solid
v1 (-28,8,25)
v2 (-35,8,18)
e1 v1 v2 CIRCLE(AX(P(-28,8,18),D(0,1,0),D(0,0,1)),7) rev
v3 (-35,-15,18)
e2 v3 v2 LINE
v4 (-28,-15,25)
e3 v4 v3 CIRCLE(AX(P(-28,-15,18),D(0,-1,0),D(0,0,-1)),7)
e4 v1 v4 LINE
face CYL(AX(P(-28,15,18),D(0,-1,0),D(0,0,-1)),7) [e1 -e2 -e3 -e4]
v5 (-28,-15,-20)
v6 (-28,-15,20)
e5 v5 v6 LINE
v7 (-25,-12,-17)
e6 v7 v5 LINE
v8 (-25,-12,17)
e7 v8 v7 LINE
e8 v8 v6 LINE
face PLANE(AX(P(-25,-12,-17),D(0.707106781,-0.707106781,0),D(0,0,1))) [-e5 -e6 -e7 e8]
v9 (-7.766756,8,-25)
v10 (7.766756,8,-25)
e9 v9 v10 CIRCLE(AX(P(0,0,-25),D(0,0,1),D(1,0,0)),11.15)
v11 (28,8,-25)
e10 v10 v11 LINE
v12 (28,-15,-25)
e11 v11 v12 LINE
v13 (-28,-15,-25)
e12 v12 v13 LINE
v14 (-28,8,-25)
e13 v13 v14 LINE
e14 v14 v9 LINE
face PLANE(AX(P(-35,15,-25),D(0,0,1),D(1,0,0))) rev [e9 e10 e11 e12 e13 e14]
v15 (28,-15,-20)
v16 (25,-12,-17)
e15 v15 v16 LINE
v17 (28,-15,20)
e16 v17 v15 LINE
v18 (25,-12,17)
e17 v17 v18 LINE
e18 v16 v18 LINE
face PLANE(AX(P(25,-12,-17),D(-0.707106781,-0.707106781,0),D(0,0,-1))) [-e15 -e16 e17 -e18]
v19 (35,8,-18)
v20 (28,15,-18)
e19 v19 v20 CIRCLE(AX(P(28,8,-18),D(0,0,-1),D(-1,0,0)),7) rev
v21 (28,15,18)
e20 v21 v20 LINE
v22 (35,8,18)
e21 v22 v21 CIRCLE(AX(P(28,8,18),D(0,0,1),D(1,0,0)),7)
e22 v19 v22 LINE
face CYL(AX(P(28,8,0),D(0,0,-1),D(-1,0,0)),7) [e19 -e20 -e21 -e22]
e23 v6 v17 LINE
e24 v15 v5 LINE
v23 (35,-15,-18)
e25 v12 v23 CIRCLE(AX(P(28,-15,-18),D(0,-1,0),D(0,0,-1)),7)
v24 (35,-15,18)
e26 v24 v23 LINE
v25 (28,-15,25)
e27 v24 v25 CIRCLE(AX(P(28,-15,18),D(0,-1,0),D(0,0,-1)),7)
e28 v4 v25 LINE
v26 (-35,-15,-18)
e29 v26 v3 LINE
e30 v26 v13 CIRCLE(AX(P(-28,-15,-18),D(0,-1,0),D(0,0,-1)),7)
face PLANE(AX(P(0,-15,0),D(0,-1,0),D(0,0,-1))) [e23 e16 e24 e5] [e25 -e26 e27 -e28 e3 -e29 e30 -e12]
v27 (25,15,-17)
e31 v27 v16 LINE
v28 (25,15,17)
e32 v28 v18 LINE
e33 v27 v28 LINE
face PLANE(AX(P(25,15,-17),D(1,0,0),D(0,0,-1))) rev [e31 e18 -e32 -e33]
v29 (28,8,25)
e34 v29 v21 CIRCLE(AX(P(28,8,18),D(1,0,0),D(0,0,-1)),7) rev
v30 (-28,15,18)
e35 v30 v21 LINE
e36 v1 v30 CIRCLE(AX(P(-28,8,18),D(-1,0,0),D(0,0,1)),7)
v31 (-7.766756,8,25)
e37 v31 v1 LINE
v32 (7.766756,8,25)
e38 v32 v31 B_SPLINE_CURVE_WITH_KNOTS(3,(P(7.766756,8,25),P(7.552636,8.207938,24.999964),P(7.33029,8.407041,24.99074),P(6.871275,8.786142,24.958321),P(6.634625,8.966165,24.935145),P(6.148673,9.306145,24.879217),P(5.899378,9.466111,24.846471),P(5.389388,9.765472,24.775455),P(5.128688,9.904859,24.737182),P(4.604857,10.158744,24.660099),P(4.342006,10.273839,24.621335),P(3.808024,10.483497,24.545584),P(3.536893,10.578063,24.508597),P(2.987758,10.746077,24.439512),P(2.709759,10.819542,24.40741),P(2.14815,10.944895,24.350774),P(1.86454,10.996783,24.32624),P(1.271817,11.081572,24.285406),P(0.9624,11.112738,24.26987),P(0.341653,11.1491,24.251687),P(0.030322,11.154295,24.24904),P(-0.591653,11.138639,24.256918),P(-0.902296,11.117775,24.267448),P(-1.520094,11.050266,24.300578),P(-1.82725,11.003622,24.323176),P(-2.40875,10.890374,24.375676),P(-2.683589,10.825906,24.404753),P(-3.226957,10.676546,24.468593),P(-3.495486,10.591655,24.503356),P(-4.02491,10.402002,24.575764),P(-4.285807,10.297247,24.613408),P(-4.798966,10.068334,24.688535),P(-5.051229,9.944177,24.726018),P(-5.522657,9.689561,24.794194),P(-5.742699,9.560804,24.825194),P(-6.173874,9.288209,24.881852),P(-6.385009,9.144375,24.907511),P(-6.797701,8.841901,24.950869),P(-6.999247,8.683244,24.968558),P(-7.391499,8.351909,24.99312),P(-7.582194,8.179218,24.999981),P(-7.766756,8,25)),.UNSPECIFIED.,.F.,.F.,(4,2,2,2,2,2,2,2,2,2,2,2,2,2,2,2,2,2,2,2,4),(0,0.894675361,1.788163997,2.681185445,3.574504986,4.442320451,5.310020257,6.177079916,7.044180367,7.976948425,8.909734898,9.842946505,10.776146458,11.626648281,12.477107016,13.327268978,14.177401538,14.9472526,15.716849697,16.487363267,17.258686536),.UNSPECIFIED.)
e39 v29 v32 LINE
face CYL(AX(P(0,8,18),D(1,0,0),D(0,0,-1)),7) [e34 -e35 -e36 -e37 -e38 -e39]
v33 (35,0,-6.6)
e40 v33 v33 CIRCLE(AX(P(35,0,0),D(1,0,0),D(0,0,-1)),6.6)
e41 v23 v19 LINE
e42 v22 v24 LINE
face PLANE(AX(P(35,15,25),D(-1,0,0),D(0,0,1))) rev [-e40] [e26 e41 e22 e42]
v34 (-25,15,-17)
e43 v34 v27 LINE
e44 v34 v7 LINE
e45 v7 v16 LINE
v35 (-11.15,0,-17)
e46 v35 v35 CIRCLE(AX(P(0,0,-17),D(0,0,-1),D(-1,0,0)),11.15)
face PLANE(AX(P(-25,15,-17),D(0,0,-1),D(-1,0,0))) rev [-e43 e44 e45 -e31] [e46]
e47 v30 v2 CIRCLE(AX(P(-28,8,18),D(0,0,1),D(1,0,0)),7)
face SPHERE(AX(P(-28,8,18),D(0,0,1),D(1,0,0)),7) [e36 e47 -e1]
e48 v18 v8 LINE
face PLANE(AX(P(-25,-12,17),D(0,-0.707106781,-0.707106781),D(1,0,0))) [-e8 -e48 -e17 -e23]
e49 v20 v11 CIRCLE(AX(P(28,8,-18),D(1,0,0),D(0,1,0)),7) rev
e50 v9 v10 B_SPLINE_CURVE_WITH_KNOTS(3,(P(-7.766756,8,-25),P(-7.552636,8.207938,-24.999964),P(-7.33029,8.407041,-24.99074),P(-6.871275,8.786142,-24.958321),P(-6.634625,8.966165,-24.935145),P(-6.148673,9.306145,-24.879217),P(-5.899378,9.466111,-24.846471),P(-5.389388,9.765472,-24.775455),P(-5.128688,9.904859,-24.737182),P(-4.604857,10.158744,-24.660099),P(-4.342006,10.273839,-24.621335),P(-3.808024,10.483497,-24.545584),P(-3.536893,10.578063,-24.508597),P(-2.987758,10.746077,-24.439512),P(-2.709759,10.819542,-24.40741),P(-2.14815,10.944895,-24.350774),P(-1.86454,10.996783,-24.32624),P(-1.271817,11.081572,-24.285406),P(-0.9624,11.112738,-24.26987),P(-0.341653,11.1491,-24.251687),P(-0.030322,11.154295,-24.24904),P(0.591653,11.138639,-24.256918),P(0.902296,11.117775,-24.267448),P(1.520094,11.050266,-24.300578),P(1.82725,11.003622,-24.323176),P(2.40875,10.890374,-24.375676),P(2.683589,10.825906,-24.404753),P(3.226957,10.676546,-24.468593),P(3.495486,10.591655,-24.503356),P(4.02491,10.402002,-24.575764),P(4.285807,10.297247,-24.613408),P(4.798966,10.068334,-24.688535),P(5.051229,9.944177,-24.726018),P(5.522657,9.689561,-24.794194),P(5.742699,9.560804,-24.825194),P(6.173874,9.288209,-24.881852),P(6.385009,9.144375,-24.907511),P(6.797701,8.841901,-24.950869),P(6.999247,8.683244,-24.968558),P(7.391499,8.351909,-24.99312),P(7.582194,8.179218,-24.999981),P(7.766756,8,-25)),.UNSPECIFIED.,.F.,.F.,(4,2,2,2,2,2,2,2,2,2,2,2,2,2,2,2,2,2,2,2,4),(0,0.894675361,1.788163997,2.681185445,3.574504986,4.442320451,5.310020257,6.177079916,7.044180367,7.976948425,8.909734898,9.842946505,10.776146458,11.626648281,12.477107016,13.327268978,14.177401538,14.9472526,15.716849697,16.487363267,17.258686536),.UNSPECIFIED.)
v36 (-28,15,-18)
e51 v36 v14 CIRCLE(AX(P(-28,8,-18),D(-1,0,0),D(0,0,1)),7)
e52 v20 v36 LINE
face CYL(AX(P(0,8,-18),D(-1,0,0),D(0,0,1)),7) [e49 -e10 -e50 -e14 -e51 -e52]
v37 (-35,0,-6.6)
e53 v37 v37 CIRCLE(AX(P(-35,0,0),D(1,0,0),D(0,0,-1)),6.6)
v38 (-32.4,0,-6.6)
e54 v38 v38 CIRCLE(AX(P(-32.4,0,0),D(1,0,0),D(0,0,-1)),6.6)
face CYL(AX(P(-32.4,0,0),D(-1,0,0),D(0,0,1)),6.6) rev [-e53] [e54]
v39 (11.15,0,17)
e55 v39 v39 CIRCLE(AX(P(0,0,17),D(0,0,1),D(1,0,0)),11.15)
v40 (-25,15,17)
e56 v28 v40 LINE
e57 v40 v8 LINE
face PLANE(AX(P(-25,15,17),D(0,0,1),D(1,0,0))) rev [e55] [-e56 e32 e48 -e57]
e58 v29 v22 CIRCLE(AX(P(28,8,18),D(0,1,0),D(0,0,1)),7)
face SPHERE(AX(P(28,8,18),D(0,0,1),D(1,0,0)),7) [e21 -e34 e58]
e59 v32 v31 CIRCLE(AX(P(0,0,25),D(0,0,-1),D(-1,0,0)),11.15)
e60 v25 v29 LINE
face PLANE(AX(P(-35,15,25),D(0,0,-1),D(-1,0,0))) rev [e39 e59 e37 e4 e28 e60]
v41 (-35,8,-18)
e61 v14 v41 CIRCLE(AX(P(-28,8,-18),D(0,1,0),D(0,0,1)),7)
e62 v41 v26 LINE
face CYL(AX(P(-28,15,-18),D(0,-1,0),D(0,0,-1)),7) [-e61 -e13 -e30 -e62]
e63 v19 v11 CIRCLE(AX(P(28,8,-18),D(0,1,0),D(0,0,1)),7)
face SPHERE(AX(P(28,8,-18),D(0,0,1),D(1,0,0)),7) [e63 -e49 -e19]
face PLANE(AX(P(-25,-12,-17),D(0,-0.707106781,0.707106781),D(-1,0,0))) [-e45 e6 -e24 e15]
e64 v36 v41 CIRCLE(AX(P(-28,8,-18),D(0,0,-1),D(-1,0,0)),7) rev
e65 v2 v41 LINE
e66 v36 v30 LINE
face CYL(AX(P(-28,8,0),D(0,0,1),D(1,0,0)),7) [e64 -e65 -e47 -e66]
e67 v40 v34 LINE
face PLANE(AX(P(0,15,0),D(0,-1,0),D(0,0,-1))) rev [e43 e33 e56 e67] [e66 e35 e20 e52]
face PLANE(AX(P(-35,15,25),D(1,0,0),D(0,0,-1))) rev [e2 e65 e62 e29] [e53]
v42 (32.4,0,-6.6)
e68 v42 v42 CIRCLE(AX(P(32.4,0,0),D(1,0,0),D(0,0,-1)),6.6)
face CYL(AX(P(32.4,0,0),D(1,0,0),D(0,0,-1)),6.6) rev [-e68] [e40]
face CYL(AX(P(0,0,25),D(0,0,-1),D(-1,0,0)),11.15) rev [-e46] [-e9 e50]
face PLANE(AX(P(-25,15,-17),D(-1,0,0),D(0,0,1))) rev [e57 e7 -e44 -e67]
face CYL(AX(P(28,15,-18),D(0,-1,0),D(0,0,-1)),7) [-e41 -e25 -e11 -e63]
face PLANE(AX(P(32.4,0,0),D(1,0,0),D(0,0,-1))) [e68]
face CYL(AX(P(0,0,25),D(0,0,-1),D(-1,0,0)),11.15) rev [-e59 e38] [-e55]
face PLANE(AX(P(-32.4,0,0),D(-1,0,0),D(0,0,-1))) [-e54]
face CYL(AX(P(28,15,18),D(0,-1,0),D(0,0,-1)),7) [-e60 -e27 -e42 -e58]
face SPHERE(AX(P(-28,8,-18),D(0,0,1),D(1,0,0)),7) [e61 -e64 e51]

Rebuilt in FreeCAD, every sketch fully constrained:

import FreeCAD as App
import Part
import Sketcher
Q = App.Units.Quantity


def edges_at(feature, points):
    """Names of the edges that pass closest to the given points."""
    edges = feature.Shape.Edges
    near = lambda p: min(range(len(edges)), key=lambda i: edges[i].distToShape(Part.Vertex(*p))[0])
    return sorted({f"Edge{near(p) + 1}" for p in points})

doc = App.newDocument("Part")
body = doc.addObject("PartDesign::Body", "Body")

sketch1 = body.newObject("Sketcher::SketchObject", "Sketch")
sketch1.AttachmentSupport = (doc.getObject("XZ_Plane"), [""])
sketch1.MapMode = "FlatFace"
sketch1.addGeometry([
    Part.LineSegment(App.Vector(-35, -25, 0), App.Vector(-35, 25, 0)),
    Part.LineSegment(App.Vector(-35, 25, 0), App.Vector(35, 25, 0)),
    Part.LineSegment(App.Vector(35, 25, 0), App.Vector(35, -25, 0)),
    Part.LineSegment(App.Vector(35, -25, 0), App.Vector(-35, -25, 0)),
], False)
sketch1.addConstraint([
    Sketcher.Constraint("Coincident", 0, 2, 1, 1),
    Sketcher.Constraint("Coincident", 1, 2, 2, 1),
    Sketcher.Constraint("Coincident", 2, 2, 3, 1),
    Sketcher.Constraint("Coincident", 3, 2, 0, 1),
    Sketcher.Constraint("Vertical", 0),
    Sketcher.Constraint("Horizontal", 1),
    Sketcher.Constraint("Vertical", 2),
    Sketcher.Constraint("Horizontal", 3),
    Sketcher.Constraint("Symmetric", 0, 2, 2, 2, -1, 1),
    Sketcher.Constraint("DistanceX", 1, 1, 1, 2, Q("70 mm")),
    Sketcher.Constraint("DistanceY", 0, 1, 0, 2, Q("50 mm")),
])
pad1 = body.newObject("PartDesign::Pad", "Pad")
pad1.Profile = sketch1
pad1.Length = 30
pad1.Midplane = True

sketch2 = body.newObject("Sketcher::SketchObject", "Sketch001")
sketch2.AttachmentSupport = (doc.getObject("XZ_Plane"), [""])
sketch2.MapMode = "FlatFace"
sketch2.AttachmentOffset = App.Placement(App.Vector(0, 0, 15), App.Rotation())
sketch2.addGeometry([
    Part.LineSegment(App.Vector(-25, 17, 0), App.Vector(-25, -17, 0)),
    Part.LineSegment(App.Vector(-25, -17, 0), App.Vector(25, -17, 0)),
    Part.LineSegment(App.Vector(25, -17, 0), App.Vector(25, 17, 0)),
    Part.LineSegment(App.Vector(25, 17, 0), App.Vector(-25, 17, 0)),
], False)
sketch2.addConstraint([
    Sketcher.Constraint("Coincident", 0, 2, 1, 1),
    Sketcher.Constraint("Coincident", 1, 2, 2, 1),
    Sketcher.Constraint("Coincident", 2, 2, 3, 1),
    Sketcher.Constraint("Coincident", 3, 2, 0, 1),
    Sketcher.Constraint("Vertical", 0),
    Sketcher.Constraint("Horizontal", 1),
    Sketcher.Constraint("Vertical", 2),
    Sketcher.Constraint("Horizontal", 3),
    Sketcher.Constraint("Symmetric", 0, 2, 2, 2, -1, 1),
    Sketcher.Constraint("DistanceX", 1, 1, 1, 2, Q("50 mm")),
    Sketcher.Constraint("DistanceY", 0, 2, 0, 1, Q("34 mm")),
])
pocket1 = body.newObject("PartDesign::Pocket", "Pocket")
pocket1.Profile = sketch2
pocket1.Type = "ThroughAll"
pocket1.Midplane = True
doc.recompute()

fillet = body.newObject("PartDesign::Fillet", "Fillet")
fillet.Base = (pocket1, edges_at(pocket1, [
    (-35, 15, 0),
    (0, 15, 25),
    (35, 15, 0),
    (0, 15, -25),
    (35, 0, 25),
    (-35, 0, 25),
    (-35, 0, -25),
    (35, 0, -25),
]))
fillet.Radius = 7
doc.recompute()

chamfer = body.newObject("PartDesign::Chamfer", "Chamfer")
chamfer.Base = (fillet, edges_at(fillet, [
    (0, -15, 17),
    (-25, -15, 0),
    (0, -15, -17),
    (25, -15, 0),
]))
chamfer.Size = 3

sketch3 = body.newObject("Sketcher::SketchObject", "Sketch002")
sketch3.AttachmentSupport = (doc.getObject("XY_Plane"), [""])
sketch3.MapMode = "FlatFace"
sketch3.AttachmentOffset = App.Placement(App.Vector(0, 0, -25), App.Rotation())
sketch3.addGeometry(Part.Circle(App.Vector(0, 0, 0), App.Vector(0, 0, 1), 11), False)
sketch3.addConstraint([
    Sketcher.Constraint("Coincident", 0, 3, -1, 1),
    Sketcher.Constraint("Diameter", 0, Q("22.3 mm")),
])
pocket2 = body.newObject("PartDesign::Pocket", "Pocket001")
pocket2.Profile = sketch3
pocket2.Type = "ThroughAll"
pocket2.Midplane = True

sketch4 = body.newObject("Sketcher::SketchObject", "Sketch003")
sketch4.AttachmentSupport = (doc.getObject("YZ_Plane"), [""])
sketch4.MapMode = "FlatFace"
sketch4.AttachmentOffset = App.Placement(App.Vector(0, 0, 35), App.Rotation())
sketch4.addGeometry(Part.Circle(App.Vector(0, 0, 0), App.Vector(0, 0, 1), 7), False)
sketch4.addConstraint([
    Sketcher.Constraint("Coincident", 0, 3, -1, 1),
    Sketcher.Constraint("Diameter", 0, Q("13.2 mm")),
])
pocket3 = body.newObject("PartDesign::Pocket", "Pocket002")
pocket3.Profile = sketch4
pocket3.Length = 2.6
doc.recompute()

mirrored = body.newObject("PartDesign::Mirrored", "Mirrored")
mirrored.Originals = [pocket3]
mirrored.MirrorPlane = (doc.getObject("YZ_Plane"), [""])
body.Tip = mirrored

doc.recompute()
